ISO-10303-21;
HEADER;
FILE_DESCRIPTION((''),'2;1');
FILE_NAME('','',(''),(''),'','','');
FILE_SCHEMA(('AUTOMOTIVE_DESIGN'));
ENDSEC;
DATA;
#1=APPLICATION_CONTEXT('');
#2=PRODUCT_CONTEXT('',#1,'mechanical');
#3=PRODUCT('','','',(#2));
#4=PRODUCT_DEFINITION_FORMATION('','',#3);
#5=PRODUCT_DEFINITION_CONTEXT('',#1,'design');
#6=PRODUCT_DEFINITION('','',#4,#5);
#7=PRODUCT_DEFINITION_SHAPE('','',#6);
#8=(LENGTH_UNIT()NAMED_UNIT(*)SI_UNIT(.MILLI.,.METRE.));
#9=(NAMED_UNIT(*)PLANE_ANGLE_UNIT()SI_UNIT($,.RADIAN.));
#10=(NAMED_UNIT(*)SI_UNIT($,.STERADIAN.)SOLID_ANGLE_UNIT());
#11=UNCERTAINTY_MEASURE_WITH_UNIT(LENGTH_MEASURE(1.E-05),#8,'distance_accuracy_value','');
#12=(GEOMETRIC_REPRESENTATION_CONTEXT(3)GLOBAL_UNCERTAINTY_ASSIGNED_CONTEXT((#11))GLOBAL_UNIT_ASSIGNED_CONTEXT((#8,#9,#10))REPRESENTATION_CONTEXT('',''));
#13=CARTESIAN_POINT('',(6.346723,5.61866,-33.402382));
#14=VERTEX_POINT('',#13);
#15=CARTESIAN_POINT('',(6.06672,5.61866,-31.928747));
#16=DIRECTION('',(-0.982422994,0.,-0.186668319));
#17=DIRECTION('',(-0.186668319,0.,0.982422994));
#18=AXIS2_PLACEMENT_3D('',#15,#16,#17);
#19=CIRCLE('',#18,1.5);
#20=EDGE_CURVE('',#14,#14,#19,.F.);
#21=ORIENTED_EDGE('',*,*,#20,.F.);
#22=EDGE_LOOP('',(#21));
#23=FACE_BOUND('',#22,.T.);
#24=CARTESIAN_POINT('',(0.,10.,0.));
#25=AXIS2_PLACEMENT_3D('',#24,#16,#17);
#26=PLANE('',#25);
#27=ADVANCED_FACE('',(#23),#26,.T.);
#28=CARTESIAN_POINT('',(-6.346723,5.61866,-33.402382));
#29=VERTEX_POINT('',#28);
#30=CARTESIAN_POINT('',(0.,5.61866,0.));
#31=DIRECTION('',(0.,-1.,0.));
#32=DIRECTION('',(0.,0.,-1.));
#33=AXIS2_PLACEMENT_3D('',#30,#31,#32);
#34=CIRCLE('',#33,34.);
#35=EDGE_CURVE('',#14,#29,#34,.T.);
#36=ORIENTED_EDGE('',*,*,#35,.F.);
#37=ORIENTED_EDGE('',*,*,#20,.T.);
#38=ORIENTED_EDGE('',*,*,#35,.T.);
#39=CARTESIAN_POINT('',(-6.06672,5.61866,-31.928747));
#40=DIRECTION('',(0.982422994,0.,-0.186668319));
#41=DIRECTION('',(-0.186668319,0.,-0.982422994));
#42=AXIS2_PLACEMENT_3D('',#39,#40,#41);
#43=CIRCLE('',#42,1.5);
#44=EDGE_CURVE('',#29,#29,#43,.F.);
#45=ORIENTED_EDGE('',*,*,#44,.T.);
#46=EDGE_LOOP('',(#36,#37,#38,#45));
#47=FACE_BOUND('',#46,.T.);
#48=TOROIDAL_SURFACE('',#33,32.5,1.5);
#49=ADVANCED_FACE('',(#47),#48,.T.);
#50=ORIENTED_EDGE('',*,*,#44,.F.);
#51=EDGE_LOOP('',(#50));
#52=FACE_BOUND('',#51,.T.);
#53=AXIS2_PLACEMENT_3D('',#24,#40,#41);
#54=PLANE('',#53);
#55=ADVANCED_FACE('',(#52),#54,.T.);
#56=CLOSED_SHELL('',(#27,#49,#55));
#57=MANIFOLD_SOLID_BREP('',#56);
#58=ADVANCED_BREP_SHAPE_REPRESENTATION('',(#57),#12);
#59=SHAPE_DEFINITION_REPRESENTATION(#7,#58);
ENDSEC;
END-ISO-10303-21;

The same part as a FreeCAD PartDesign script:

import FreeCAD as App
import Part
import Sketcher
from FreeCAD import Vector

doc = App.newDocument("Part")
body = doc.addObject("PartDesign::Body", "Body")

# Sketch on XY plane
sketch1 = doc.addObject("Sketcher::SketchObject", "Sketch")
body.addObject(sketch1)
sketch1.AttachmentSupport = (doc.XY_Plane, [""])
sketch1.MapMode = "FlatFace"
sketch1.addGeometry(Part.Circle(Vector(32.5, 5.6, 0), Vector(0, 0, 1), 1.5), False)
sketch1.addConstraint([
    Sketcher.Constraint("Diameter", 0, 3.0),
    Sketcher.Constraint("DistanceX", -1, 1, 0, 3, 32.5),
    Sketcher.Constraint("DistanceY", -1, 1, 0, 3, 5.61866),
])
revolution = doc.addObject("PartDesign::Revolution", "Revolution")
body.addObject(revolution)
revolution.Profile = sketch1
revolution.ReferenceAxis = (sketch1, ["V_Axis"])
revolution.Angle = 360

# Sketch on XZ plane
sketch2 = doc.addObject("Sketcher::SketchObject", "Sketch001")
body.addObject(sketch2)
sketch2.AttachmentSupport = (doc.XZ_Plane, [""])
sketch2.MapMode = "FlatFace"
sketch2.addGeometry([
    Part.LineSegment(Vector(0, 0, 0), Vector(8, -39, 0)),
    Part.LineSegment(Vector(8, -39, 0), Vector(-8, -39, 0)),
    Part.LineSegment(Vector(-8, -39, 0), Vector(0, 0, 0)),
], False)
sketch2.addConstraint([
    Sketcher.Constraint("Coincident", 0, 2, 1, 1),
    Sketcher.Constraint("Coincident", 1, 2, 2, 1),
    Sketcher.Constraint("Coincident", 2, 2, 0, 1),
    Sketcher.Constraint("Horizontal", 1),
    Sketcher.Constraint("Coincident", 2, 2, -1, 1),
    Sketcher.Constraint("Equal", 0, 2),
    Sketcher.Constraint("DistanceX", 1, 2, 1, 1, 15.0),
    Sketcher.Constraint("Distance", 0, 40.178216),
])
pocket1 = doc.addObject("PartDesign::Pocket", "Pocket")
body.addObject(pocket1)
pocket1.Profile = sketch2
pocket1.Type = "ThroughAll"
pocket1.Midplane = True

doc.recompute()
